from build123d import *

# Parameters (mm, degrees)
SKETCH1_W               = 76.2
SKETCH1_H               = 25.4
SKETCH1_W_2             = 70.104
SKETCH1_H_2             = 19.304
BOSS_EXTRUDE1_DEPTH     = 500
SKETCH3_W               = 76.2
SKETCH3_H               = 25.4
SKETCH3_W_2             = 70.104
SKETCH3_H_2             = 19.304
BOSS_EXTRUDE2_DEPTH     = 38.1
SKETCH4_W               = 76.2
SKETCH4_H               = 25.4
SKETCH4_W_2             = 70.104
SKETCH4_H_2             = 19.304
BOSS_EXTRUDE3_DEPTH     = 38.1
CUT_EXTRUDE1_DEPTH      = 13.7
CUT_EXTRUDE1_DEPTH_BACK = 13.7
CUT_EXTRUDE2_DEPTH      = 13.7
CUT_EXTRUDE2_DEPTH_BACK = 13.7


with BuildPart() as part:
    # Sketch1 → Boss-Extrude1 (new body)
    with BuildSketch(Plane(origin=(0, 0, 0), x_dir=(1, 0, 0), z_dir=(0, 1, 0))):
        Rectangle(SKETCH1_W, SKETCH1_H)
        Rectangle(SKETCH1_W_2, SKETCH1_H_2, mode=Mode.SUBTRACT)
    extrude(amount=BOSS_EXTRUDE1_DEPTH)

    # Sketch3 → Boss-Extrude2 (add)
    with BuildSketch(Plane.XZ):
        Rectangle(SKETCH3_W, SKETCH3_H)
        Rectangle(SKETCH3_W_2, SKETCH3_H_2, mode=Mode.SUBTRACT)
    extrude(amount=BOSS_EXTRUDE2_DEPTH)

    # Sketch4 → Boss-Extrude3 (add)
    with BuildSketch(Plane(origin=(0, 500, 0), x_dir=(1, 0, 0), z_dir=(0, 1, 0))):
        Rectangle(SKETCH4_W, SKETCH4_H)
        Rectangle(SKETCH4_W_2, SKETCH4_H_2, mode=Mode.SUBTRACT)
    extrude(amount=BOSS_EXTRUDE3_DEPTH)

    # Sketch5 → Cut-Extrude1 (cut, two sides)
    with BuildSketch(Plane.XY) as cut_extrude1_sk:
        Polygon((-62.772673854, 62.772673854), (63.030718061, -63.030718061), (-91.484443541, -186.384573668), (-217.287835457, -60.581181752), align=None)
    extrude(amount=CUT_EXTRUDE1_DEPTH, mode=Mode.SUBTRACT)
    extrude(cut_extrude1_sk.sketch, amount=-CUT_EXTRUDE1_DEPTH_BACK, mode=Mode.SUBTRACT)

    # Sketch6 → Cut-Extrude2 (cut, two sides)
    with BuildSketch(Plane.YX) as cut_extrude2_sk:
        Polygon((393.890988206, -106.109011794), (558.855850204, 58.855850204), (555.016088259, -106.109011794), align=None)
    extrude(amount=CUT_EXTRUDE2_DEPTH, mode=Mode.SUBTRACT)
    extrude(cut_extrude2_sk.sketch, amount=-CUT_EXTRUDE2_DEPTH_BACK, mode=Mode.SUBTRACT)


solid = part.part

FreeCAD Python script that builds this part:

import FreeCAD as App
import Part
import Sketcher
from FreeCAD import Vector
Q = App.Units.Quantity


def add_polygon(sketch, points):
    """Adds a closed chain of lines whose ends are joined by coincident constraints."""
    first, n = sketch.GeometryCount, len(points)
    for a, b in zip(points, points[1:] + points[:1]):
        sketch.addGeometry(Part.LineSegment(App.Vector(*a, 0), App.Vector(*b, 0)), False)
    for i in range(n):
        sketch.addConstraint(Sketcher.Constraint("Coincident", first + i, 2, first + (i + 1) % n, 1))

doc = App.newDocument("Part")
params = doc.addObject("Spreadsheet::Sheet", "Params")
for row, (alias, value) in enumerate([
    ("sketch1_width", "3 in"),
    ("sketch1_height", "1 in"),
    ("sketch1_width2", "2.76 in"),
    ("sketch1_height2", "0.76 in"),
    ("pad1_length", "500 mm"),
    ("sketch2_width", "3 in"),
    ("sketch2_height", "1 in"),
    ("sketch2_width2", "2.76 in"),
    ("sketch2_height2", "0.76 in"),
    ("pad2_length", "1.5 in"),
    ("sketch3_width", "3 in"),
    ("sketch3_height", "1 in"),
    ("sketch3_width2", "2.76 in"),
    ("sketch3_height2", "0.76 in"),
    ("pad3_length", "1.5 in"),
], start=1):
    params.set(f"A{row}", alias)
    params.set(f"B{row}", "=" + value)
    params.setAlias(f"B{row}", alias)

body = doc.addObject("PartDesign::Body", "Body")

sketch1 = body.newObject("Sketcher::SketchObject", "Sketch")
sketch1.AttachmentSupport = (doc.getObject("XZ_Plane"), [""])
sketch1.MapMode = "FlatFace"
add_polygon(sketch1, [(-38, -13), (-38, 13), (38, 13), (38, -13)])
add_polygon(sketch1, [(35, 10), (-35, 10), (-35, -10), (35, -10)])
sketch1.addConstraint(Sketcher.Constraint("Vertical", 0))
sketch1.addConstraint(Sketcher.Constraint("Horizontal", 1))
sketch1.addConstraint(Sketcher.Constraint("Vertical", 2))
sketch1.addConstraint(Sketcher.Constraint("Horizontal", 3))
sketch1.addConstraint(Sketcher.Constraint("Horizontal", 4))
sketch1.addConstraint(Sketcher.Constraint("Vertical", 5))
sketch1.addConstraint(Sketcher.Constraint("Horizontal", 6))
sketch1.addConstraint(Sketcher.Constraint("Vertical", 7))
sketch1.addConstraint(Sketcher.Constraint("Symmetric", 0, 2, 2, 2, -1, 1))
sketch1.addConstraint(Sketcher.Constraint("Symmetric", 4, 2, 6, 2, -1, 1))
sketch1.addConstraint(Sketcher.Constraint("DistanceX", 1, 1, 1, 2, Q("3 in")))
sketch1.addConstraint(Sketcher.Constraint("DistanceY", 0, 1, 0, 2, Q("1 in")))
sketch1.addConstraint(Sketcher.Constraint("DistanceX", 4, 2, 4, 1, Q("2.76 in")))
sketch1.addConstraint(Sketcher.Constraint("DistanceY", 5, 2, 5, 1, Q("0.76 in")))
sketch1.setExpression("Constraints[18]", "Params.sketch1_width")
sketch1.setExpression("Constraints[19]", "Params.sketch1_height")
sketch1.setExpression("Constraints[20]", "Params.sketch1_width2")
sketch1.setExpression("Constraints[21]", "Params.sketch1_height2")
pad1 = body.newObject("PartDesign::Pad", "Pad")
pad1.Profile = sketch1
pad1.setExpression("Length", "Params.pad1_length")
pad1.Reversed = True

sketch2 = body.newObject("Sketcher::SketchObject", "Sketch001")
sketch2.AttachmentSupport = (doc.getObject("XZ_Plane"), [""])
sketch2.MapMode = "FlatFace"
add_polygon(sketch2, [(-38, 13), (-38, -13), (38, -13), (38, 13)])
add_polygon(sketch2, [(35, -10), (-35, -10), (-35, 10), (35, 10)])
sketch2.addConstraint(Sketcher.Constraint("Vertical", 0))
sketch2.addConstraint(Sketcher.Constraint("Horizontal", 1))
sketch2.addConstraint(Sketcher.Constraint("Vertical", 2))
sketch2.addConstraint(Sketcher.Constraint("Horizontal", 3))
sketch2.addConstraint(Sketcher.Constraint("Horizontal", 4))
sketch2.addConstraint(Sketcher.Constraint("Vertical", 5))
sketch2.addConstraint(Sketcher.Constraint("Horizontal", 6))
sketch2.addConstraint(Sketcher.Constraint("Vertical", 7))
sketch2.addConstraint(Sketcher.Constraint("Symmetric", 0, 2, 2, 2, -1, 1))
sketch2.addConstraint(Sketcher.Constraint("Symmetric", 4, 2, 6, 2, -1, 1))
sketch2.addConstraint(Sketcher.Constraint("DistanceX", 1, 1, 1, 2, Q("3 in")))
sketch2.addConstraint(Sketcher.Constraint("DistanceY", 0, 2, 0, 1, Q("1 in")))
sketch2.addConstraint(Sketcher.Constraint("DistanceX", 4, 2, 4, 1, Q("2.76 in")))
sketch2.addConstraint(Sketcher.Constraint("DistanceY", 5, 1, 5, 2, Q("0.76 in")))
sketch2.setExpression("Constraints[18]", "Params.sketch2_width")
sketch2.setExpression("Constraints[19]", "Params.sketch2_height")
sketch2.setExpression("Constraints[20]", "Params.sketch2_width2")
sketch2.setExpression("Constraints[21]", "Params.sketch2_height2")
pad2 = body.newObject("PartDesign::Pad", "Pad001")
pad2.Profile = sketch2
pad2.setExpression("Length", "Params.pad2_length")

sketch3 = body.newObject("Sketcher::SketchObject", "Sketch002")
sketch3.AttachmentSupport = (doc.getObject("XZ_Plane"), [""])
sketch3.MapMode = "FlatFace"
sketch3.AttachmentOffset = App.Placement(Vector(0, 0, -500), App.Rotation())
add_polygon(sketch3, [(-38, -13), (-38, 13), (38, 13), (38, -13)])
add_polygon(sketch3, [(35, 10), (-35, 10), (-35, -10), (35, -10)])
sketch3.addConstraint(Sketcher.Constraint("Vertical", 0))
sketch3.addConstraint(Sketcher.Constraint("Horizontal", 1))
sketch3.addConstraint(Sketcher.Constraint("Vertical", 2))
sketch3.addConstraint(Sketcher.Constraint("Horizontal", 3))
sketch3.addConstraint(Sketcher.Constraint("Horizontal", 4))
sketch3.addConstraint(Sketcher.Constraint("Vertical", 5))
sketch3.addConstraint(Sketcher.Constraint("Horizontal", 6))
sketch3.addConstraint(Sketcher.Constraint("Vertical", 7))
sketch3.addConstraint(Sketcher.Constraint("Symmetric", 0, 2, 2, 2, -1, 1))
sketch3.addConstraint(Sketcher.Constraint("Symmetric", 4, 2, 6, 2, -1, 1))
sketch3.addConstraint(Sketcher.Constraint("DistanceX", 1, 1, 1, 2, Q("3 in")))
sketch3.addConstraint(Sketcher.Constraint("DistanceY", 0, 1, 0, 2, Q("1 in")))
sketch3.addConstraint(Sketcher.Constraint("DistanceX", 4, 2, 4, 1, Q("2.76 in")))
sketch3.addConstraint(Sketcher.Constraint("DistanceY", 5, 2, 5, 1, Q("0.76 in")))
sketch3.setExpression("Constraints[18]", "Params.sketch3_width")
sketch3.setExpression("Constraints[19]", "Params.sketch3_height")
sketch3.setExpression("Constraints[20]", "Params.sketch3_width2")
sketch3.setExpression("Constraints[21]", "Params.sketch3_height2")
pad3 = body.newObject("PartDesign::Pad", "Pad002")
pad3.Profile = sketch3
pad3.setExpression("Length", "Params.pad3_length")
pad3.Reversed = True

sketch4 = body.newObject("Sketcher::SketchObject", "Sketch003")
sketch4.AttachmentSupport = (doc.getObject("XY_Plane"), [""])
sketch4.MapMode = "FlatFace"
add_polygon(sketch4, [(63, -63), (-63, 63), (-217, -61), (-91, -186)])
sketch4.addConstraint(Sketcher.Constraint("Parallel", 0, 2))
sketch4.addConstraint(Sketcher.Constraint("Parallel", 1, 3))
sketch4.addConstraint(Sketcher.Constraint("Angle", 0, Q("135 deg")))
sketch4.addConstraint(Sketcher.Constraint("DistanceY", 1, 2, -1, 1, Q("60.581182 mm")))
sketch4.addConstraint(Sketcher.Constraint("DistanceX", -1, 1, 3, 2, Q("63.030718 mm")))
sketch4.addConstraint(Sketcher.Constraint("DistanceY", 3, 2, -1, 1, Q("63.030718 mm")))
sketch4.addConstraint(Sketcher.Constraint("DistanceX", 1, 2, 0, 2, Q("154.515162 mm")))
sketch4.addConstraint(Sketcher.Constraint("DistanceX", 1, 2, 2, 2, Q("125.803392 mm")))
pocket1 = body.newObject("PartDesign::Pocket", "Pocket")
pocket1.Profile = sketch4
pocket1.Type = "ThroughAll"
pocket1.Midplane = True

sketch5 = body.newObject("Sketcher::SketchObject", "Sketch004")
sketch5.AttachmentSupport = (doc.getObject("XY_Plane"), [""])
sketch5.MapMode = "FlatFace"
add_polygon(sketch5, [(59, 559), (-106, 394), (-106, 555)])
sketch5.addConstraint(Sketcher.Constraint("Vertical", 1))
sketch5.addConstraint(Sketcher.Constraint("Angle", 0, Q("-135 deg")))
sketch5.addConstraint(Sketcher.Constraint("DistanceY", 1, 1, 1, 2, Q("161.1251 mm")))
sketch5.addConstraint(Sketcher.Constraint("DistanceX", 0, 2, -1, 1, Q("106.109012 mm")))
sketch5.addConstraint(Sketcher.Constraint("DistanceY", -1, 1, 0, 2, Q("393.890988 mm")))
sketch5.addConstraint(Sketcher.Constraint("DistanceX", -1, 1, 2, 2, Q("58.85585 mm")))
pocket2 = body.newObject("PartDesign::Pocket", "Pocket001")
pocket2.Profile = sketch5
pocket2.Type = "ThroughAll"
pocket2.Midplane = True

doc.recompute()
